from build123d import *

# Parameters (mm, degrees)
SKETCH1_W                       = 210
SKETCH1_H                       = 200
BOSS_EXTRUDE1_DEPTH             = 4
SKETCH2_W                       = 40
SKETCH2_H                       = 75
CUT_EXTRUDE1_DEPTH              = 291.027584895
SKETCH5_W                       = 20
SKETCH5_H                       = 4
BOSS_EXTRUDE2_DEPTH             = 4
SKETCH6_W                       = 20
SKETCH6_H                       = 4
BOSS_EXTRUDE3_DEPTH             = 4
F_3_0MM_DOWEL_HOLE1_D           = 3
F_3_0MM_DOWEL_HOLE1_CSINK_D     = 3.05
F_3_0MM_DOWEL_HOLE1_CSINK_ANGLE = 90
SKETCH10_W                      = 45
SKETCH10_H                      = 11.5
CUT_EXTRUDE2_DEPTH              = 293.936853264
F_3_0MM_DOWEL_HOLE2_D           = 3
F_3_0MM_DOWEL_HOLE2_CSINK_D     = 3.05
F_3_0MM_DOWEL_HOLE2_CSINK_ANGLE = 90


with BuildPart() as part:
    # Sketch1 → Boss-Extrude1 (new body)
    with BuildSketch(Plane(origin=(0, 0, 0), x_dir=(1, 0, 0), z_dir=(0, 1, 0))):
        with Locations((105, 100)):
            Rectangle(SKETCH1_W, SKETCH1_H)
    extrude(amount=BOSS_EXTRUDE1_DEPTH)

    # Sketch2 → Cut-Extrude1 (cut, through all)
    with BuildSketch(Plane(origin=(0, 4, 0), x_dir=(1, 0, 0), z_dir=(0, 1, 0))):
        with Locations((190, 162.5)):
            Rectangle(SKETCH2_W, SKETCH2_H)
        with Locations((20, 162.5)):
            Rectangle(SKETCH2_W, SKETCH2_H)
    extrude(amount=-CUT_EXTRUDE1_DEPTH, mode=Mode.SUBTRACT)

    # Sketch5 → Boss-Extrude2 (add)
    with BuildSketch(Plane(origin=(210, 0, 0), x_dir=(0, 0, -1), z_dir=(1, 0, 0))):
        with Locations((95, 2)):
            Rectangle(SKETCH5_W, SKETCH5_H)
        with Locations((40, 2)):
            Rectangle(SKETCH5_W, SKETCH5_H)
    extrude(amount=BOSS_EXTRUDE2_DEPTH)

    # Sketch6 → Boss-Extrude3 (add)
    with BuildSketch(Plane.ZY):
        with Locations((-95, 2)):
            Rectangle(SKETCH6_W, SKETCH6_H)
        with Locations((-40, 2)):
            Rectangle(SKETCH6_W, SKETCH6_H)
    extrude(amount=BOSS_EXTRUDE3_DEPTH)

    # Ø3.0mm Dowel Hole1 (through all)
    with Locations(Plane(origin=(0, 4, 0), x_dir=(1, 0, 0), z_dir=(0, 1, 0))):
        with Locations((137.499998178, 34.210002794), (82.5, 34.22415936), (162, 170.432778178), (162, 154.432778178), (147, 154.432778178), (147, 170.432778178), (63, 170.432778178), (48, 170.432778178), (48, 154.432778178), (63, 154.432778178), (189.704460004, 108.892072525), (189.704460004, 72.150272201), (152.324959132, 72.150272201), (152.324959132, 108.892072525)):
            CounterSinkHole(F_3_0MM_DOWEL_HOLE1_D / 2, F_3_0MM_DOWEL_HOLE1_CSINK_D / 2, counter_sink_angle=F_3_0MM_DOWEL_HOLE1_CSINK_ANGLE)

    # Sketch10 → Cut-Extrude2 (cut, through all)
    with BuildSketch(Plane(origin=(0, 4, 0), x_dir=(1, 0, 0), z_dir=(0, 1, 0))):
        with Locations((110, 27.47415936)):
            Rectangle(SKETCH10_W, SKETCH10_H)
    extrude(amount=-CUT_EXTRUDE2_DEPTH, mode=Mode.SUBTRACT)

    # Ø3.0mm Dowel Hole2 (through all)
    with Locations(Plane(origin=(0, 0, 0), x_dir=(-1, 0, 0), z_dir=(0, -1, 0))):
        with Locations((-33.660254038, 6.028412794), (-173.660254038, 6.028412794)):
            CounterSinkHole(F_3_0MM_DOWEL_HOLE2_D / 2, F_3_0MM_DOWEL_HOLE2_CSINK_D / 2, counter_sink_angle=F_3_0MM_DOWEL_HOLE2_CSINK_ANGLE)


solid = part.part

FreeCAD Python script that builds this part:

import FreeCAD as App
import Part
import Sketcher

V = App.Vector
Q = App.Units.Quantity

doc = App.newDocument("Part")
body = doc.addObject("PartDesign::Body", "Body")

sketch1 = body.newObject("Sketcher::SketchObject", "Sketch")
sketch1.AttachmentSupport = (doc.getObject("XZ_Plane"), [""])
sketch1.MapMode = "FlatFace"
sketch1.addGeometry([
    Part.LineSegment(V(0, -200, 0), V(0, 0, 0)),
    Part.LineSegment(V(0, 0, 0), V(210, 0, 0)),
    Part.LineSegment(V(210, 0, 0), V(210, -200, 0)),
    Part.LineSegment(V(210, -200, 0), V(0, -200, 0)),
], False)
sketch1.addConstraint([
    Sketcher.Constraint("Coincident", 0, 2, 1, 1),
    Sketcher.Constraint("Coincident", 1, 2, 2, 1),
    Sketcher.Constraint("Coincident", 2, 2, 3, 1),
    Sketcher.Constraint("Coincident", 3, 2, 0, 1),
    Sketcher.Constraint("Vertical", 0),
    Sketcher.Constraint("Horizontal", 1),
    Sketcher.Constraint("Vertical", 2),
    Sketcher.Constraint("Horizontal", 3),
    Sketcher.Constraint("Coincident", 0, 2, -1, 1),
    Sketcher.Constraint("DistanceX", 1, 1, 1, 2, Q("210 mm")),
    Sketcher.Constraint("DistanceY", 0, 1, 0, 2, Q("200 mm")),
])
pad1 = body.newObject("PartDesign::Pad", "Pad")
pad1.Profile = sketch1
pad1.Length = 4
pad1.Reversed = True

sketch2 = body.newObject("Sketcher::SketchObject", "Sketch001")
sketch2.AttachmentSupport = (doc.getObject("XZ_Plane"), [""])
sketch2.MapMode = "FlatFace"
sketch2.AttachmentOffset = App.Placement(V(0, 0, -4), App.Rotation())
sketch2.addGeometry([
    Part.LineSegment(V(170, -200, 0), V(170, -125, 0)),
    Part.LineSegment(V(170, -125, 0), V(210, -125, 0)),
    Part.LineSegment(V(210, -125, 0), V(210, -200, 0)),
    Part.LineSegment(V(210, -200, 0), V(170, -200, 0)),
    Part.LineSegment(V(0, -200, 0), V(0, -125, 0)),
    Part.LineSegment(V(0, -125, 0), V(40, -125, 0)),
    Part.LineSegment(V(40, -125, 0), V(40, -200, 0)),
    Part.LineSegment(V(40, -200, 0), V(0, -200, 0)),
], False)
sketch2.addConstraint([
    Sketcher.Constraint("Coincident", 0, 2, 1, 1),
    Sketcher.Constraint("Coincident", 1, 2, 2, 1),
    Sketcher.Constraint("Coincident", 2, 2, 3, 1),
    Sketcher.Constraint("Coincident", 3, 2, 0, 1),
    Sketcher.Constraint("Coincident", 4, 2, 5, 1),
    Sketcher.Constraint("Coincident", 5, 2, 6, 1),
    Sketcher.Constraint("Coincident", 6, 2, 7, 1),
    Sketcher.Constraint("Coincident", 7, 2, 4, 1),
    Sketcher.Constraint("Vertical", 0),
    Sketcher.Constraint("Horizontal", 1),
    Sketcher.Constraint("Vertical", 2),
    Sketcher.Constraint("Horizontal", 3),
    Sketcher.Constraint("Vertical", 4),
    Sketcher.Constraint("Horizontal", 5),
    Sketcher.Constraint("Vertical", 6),
    Sketcher.Constraint("Horizontal", 7),
    Sketcher.Constraint("PointOnObject", 4, 2, -2),
    Sketcher.Constraint("Horizontal", 1, 2, 4, 2),
    Sketcher.Constraint("Horizontal", 3, 2, 6, 2),
    Sketcher.Constraint("Equal", 3, 5),
    Sketcher.Constraint("DistanceX", 1, 1, 1, 2, Q("40 mm")),
    Sketcher.Constraint("DistanceY", 0, 1, 0, 2, Q("75 mm")),
    Sketcher.Constraint("DistanceX", -1, 1, 0, 2, Q("170 mm")),
    Sketcher.Constraint("DistanceY", 0, 2, -1, 1, Q("125 mm")),
])
pocket1 = body.newObject("PartDesign::Pocket", "Pocket")
pocket1.Profile = sketch2
pocket1.Type = "ThroughAll"
pocket1.Reversed = True

sketch3 = body.newObject("Sketcher::SketchObject", "Sketch002")
sketch3.AttachmentSupport = (doc.getObject("YZ_Plane"), [""])
sketch3.MapMode = "FlatFace"
sketch3.AttachmentOffset = App.Placement(V(0, 0, 210), App.Rotation())
sketch3.addGeometry([
    Part.LineSegment(V(4, -85, 0), V(0, -85, 0)),
    Part.LineSegment(V(0, -85, 0), V(0, -105, 0)),
    Part.LineSegment(V(0, -105, 0), V(4, -105, 0)),
    Part.LineSegment(V(4, -105, 0), V(4, -85, 0)),
    Part.LineSegment(V(4, -30, 0), V(0, -30, 0)),
    Part.LineSegment(V(0, -30, 0), V(0, -50, 0)),
    Part.LineSegment(V(0, -50, 0), V(4, -50, 0)),
    Part.LineSegment(V(4, -50, 0), V(4, -30, 0)),
], False)
sketch3.addConstraint([
    Sketcher.Constraint("Coincident", 0, 2, 1, 1),
    Sketcher.Constraint("Coincident", 1, 2, 2, 1),
    Sketcher.Constraint("Coincident", 2, 2, 3, 1),
    Sketcher.Constraint("Coincident", 3, 2, 0, 1),
    Sketcher.Constraint("Coincident", 4, 2, 5, 1),
    Sketcher.Constraint("Coincident", 5, 2, 6, 1),
    Sketcher.Constraint("Coincident", 6, 2, 7, 1),
    Sketcher.Constraint("Coincident", 7, 2, 4, 1),
    Sketcher.Constraint("Horizontal", 0),
    Sketcher.Constraint("Vertical", 1),
    Sketcher.Constraint("Horizontal", 2),
    Sketcher.Constraint("Vertical", 3),
    Sketcher.Constraint("Horizontal", 4),
    Sketcher.Constraint("Vertical", 5),
    Sketcher.Constraint("Horizontal", 6),
    Sketcher.Constraint("Vertical", 7),
    Sketcher.Constraint("PointOnObject", 0, 2, -2),
    Sketcher.Constraint("PointOnObject", 4, 2, -2),
    Sketcher.Constraint("Vertical", 3, 2, 6, 2),
    Sketcher.Constraint("Equal", 3, 5),
    Sketcher.Constraint("DistanceX", 0, 2, 0, 1, Q("4 mm")),
    Sketcher.Constraint("DistanceY", 1, 2, 1, 1, Q("20 mm")),
    Sketcher.Constraint("DistanceY", 0, 2, -1, 1, Q("85 mm")),
    Sketcher.Constraint("DistanceY", 4, 2, -1, 1, Q("30 mm")),
])
pad2 = body.newObject("PartDesign::Pad", "Pad001")
pad2.Profile = sketch3
pad2.Length = 4

sketch4 = body.newObject("Sketcher::SketchObject", "Sketch003")
sketch4.AttachmentSupport = (doc.getObject("YZ_Plane"), [""])
sketch4.MapMode = "FlatFace"
sketch4.addGeometry([
    Part.LineSegment(V(4, -105, 0), V(0, -105, 0)),
    Part.LineSegment(V(0, -105, 0), V(0, -85, 0)),
    Part.LineSegment(V(0, -85, 0), V(4, -85, 0)),
    Part.LineSegment(V(4, -85, 0), V(4, -105, 0)),
    Part.LineSegment(V(4, -50, 0), V(0, -50, 0)),
    Part.LineSegment(V(0, -50, 0), V(0, -30, 0)),
    Part.LineSegment(V(0, -30, 0), V(4, -30, 0)),
    Part.LineSegment(V(4, -30, 0), V(4, -50, 0)),
], False)
sketch4.addConstraint([
    Sketcher.Constraint("Coincident", 0, 2, 1, 1),
    Sketcher.Constraint("Coincident", 1, 2, 2, 1),
    Sketcher.Constraint("Coincident", 2, 2, 3, 1),
    Sketcher.Constraint("Coincident", 3, 2, 0, 1),
    Sketcher.Constraint("Coincident", 4, 2, 5, 1),
    Sketcher.Constraint("Coincident", 5, 2, 6, 1),
    Sketcher.Constraint("Coincident", 6, 2, 7, 1),
    Sketcher.Constraint("Coincident", 7, 2, 4, 1),
    Sketcher.Constraint("Horizontal", 0),
    Sketcher.Constraint("Vertical", 1),
    Sketcher.Constraint("Horizontal", 2),
    Sketcher.Constraint("Vertical", 3),
    Sketcher.Constraint("Horizontal", 4),
    Sketcher.Constraint("Vertical", 5),
    Sketcher.Constraint("Horizontal", 6),
    Sketcher.Constraint("Vertical", 7),
    Sketcher.Constraint("PointOnObject", 0, 2, -2),
    Sketcher.Constraint("PointOnObject", 4, 2, -2),
    Sketcher.Constraint("Vertical", 3, 2, 6, 2),
    Sketcher.Constraint("Equal", 3, 5),
    Sketcher.Constraint("DistanceX", 0, 2, 0, 1, Q("4 mm")),
    Sketcher.Constraint("DistanceY", 1, 1, 1, 2, Q("20 mm")),
    Sketcher.Constraint("DistanceY", 0, 2, -1, 1, Q("105 mm")),
    Sketcher.Constraint("DistanceY", 4, 2, -1, 1, Q("50 mm")),
])
pad3 = body.newObject("PartDesign::Pad", "Pad002")
pad3.Profile = sketch4
pad3.Length = 4
pad3.Reversed = True

sketch5 = body.newObject("Sketcher::SketchObject", "Sketch004")
sketch5.AttachmentSupport = (doc.getObject("XZ_Plane"), [""])
sketch5.MapMode = "FlatFace"
sketch5.AttachmentOffset = App.Placement(V(0, 0, -4), App.Rotation())
sketch5.addGeometry([
    Part.Circle(V(137.499998, -34.210003, 0), V(0, 0, 1), 1.5),
    Part.Circle(V(82.5, -34.224159, 0), V(0, 0, 1), 1.5),
    Part.Circle(V(162, -170.432778, 0), V(0, 0, 1), 1.5),
    Part.Circle(V(162, -154.432778, 0), V(0, 0, 1), 1.5),
    Part.Circle(V(147, -154.432778, 0), V(0, 0, 1), 1.5),
    Part.Circle(V(147, -170.432778, 0), V(0, 0, 1), 1.5),
    Part.Circle(V(63, -170.432778, 0), V(0, 0, 1), 1.5),
    Part.Circle(V(48, -170.432778, 0), V(0, 0, 1), 1.5),
    Part.Circle(V(48, -154.432778, 0), V(0, 0, 1), 1.5),
    Part.Circle(V(63, -154.432778, 0), V(0, 0, 1), 1.5),
    Part.Circle(V(189.70446, -108.892073, 0), V(0, 0, 1), 1.5),
    Part.Circle(V(189.70446, -72.150272, 0), V(0, 0, 1), 1.5),
    Part.Circle(V(152.324959, -72.150272, 0), V(0, 0, 1), 1.5),
    Part.Circle(V(152.324959, -108.892073, 0), V(0, 0, 1), 1.5),
], False)
sketch5.addConstraint([
    Sketcher.Constraint("Equal", 0, 1),
    Sketcher.Constraint("Equal", 1, 2),
    Sketcher.Constraint("Equal", 2, 3),
    Sketcher.Constraint("Equal", 3, 4),
    Sketcher.Constraint("Equal", 4, 5),
    Sketcher.Constraint("Equal", 5, 6),
    Sketcher.Constraint("Equal", 6, 7),
    Sketcher.Constraint("Equal", 7, 8),
    Sketcher.Constraint("Equal", 8, 9),
    Sketcher.Constraint("Equal", 9, 10),
    Sketcher.Constraint("Equal", 10, 11),
    Sketcher.Constraint("Equal", 11, 12),
    Sketcher.Constraint("Equal", 12, 13),
    Sketcher.Constraint("Horizontal", 3, 3, 4, 3),
    Sketcher.Constraint("Horizontal", 2, 3, 5, 3),
    Sketcher.Constraint("Horizontal", 5, 3, 6, 3),
    Sketcher.Constraint("Horizontal", 6, 3, 7, 3),
    Sketcher.Constraint("Horizontal", 4, 3, 8, 3),
    Sketcher.Constraint("Horizontal", 8, 3, 9, 3),
    Sketcher.Constraint("Horizontal", 11, 3, 12, 3),
    Sketcher.Constraint("Horizontal", 10, 3, 13, 3),
    Sketcher.Constraint("Vertical", 2, 3, 3, 3),
    Sketcher.Constraint("Vertical", 4, 3, 5, 3),
    Sketcher.Constraint("Vertical", 7, 3, 8, 3),
    Sketcher.Constraint("Vertical", 6, 3, 9, 3),
    Sketcher.Constraint("Vertical", 10, 3, 11, 3),
    Sketcher.Constraint("Vertical", 12, 3, 13, 3),
    Sketcher.Constraint("Diameter", 0, Q("3 mm")),
    Sketcher.Constraint("DistanceX", -1, 1, 2, 3, Q("162 mm")),
    Sketcher.Constraint("DistanceX", -1, 1, 4, 3, Q("147 mm")),
    Sketcher.Constraint("DistanceX", -1, 1, 6, 3, Q("63 mm")),
    Sketcher.Constraint("DistanceX", -1, 1, 7, 3, Q("48 mm")),
    Sketcher.Constraint("DistanceX", 1, 3, 0, 3, Q("54.999998 mm")),
    Sketcher.Constraint("DistanceY", 2, 3, 3, 3, Q("16 mm")),
    Sketcher.Constraint("DistanceX", -1, 1, 0, 3, Q("137.499998 mm")),
    Sketcher.Constraint("DistanceY", 10, 3, 11, 3, Q("36.7418 mm")),
    Sketcher.Constraint("DistanceX", 12, 3, 11, 3, Q("37.379501 mm")),
    Sketcher.Constraint("DistanceY", 1, 3, -1, 1, Q("34.224159 mm")),
    Sketcher.Constraint("DistanceY", 2, 3, -1, 1, Q("170.432778 mm")),
    Sketcher.Constraint("DistanceX", -1, 1, 10, 3, Q("189.70446 mm")),
    Sketcher.Constraint("DistanceY", 10, 3, 0, 3, Q("74.68207 mm")),
    Sketcher.Constraint("DistanceY", 0, 3, -1, 1, Q("34.210003 mm")),
])
doc.recompute()
hole = body.newObject("PartDesign::Hole", "Hole")
hole.Profile = sketch5
hole.ThreadType = "None"
hole.Diameter = 3
hole.DepthType = "ThroughAll"
hole.HoleCutType = "Countersink"
hole.HoleCutDiameter = 3.05
hole.HoleCutCountersinkAngle = 90
hole.Reversed = True

sketch6 = body.newObject("Sketcher::SketchObject", "Sketch005")
sketch6.AttachmentSupport = (doc.getObject("XZ_Plane"), [""])
sketch6.MapMode = "FlatFace"
sketch6.AttachmentOffset = App.Placement(V(0, 0, -4), App.Rotation())
sketch6.addGeometry([
    Part.LineSegment(V(87.5, -33.224159, 0), V(87.5, -21.724159, 0)),
    Part.LineSegment(V(87.5, -21.724159, 0), V(132.5, -21.724159, 0)),
    Part.LineSegment(V(132.5, -21.724159, 0), V(132.5, -33.224159, 0)),
    Part.LineSegment(V(132.5, -33.224159, 0), V(87.5, -33.224159, 0)),
], False)
sketch6.addConstraint([
    Sketcher.Constraint("Coincident", 0, 2, 1, 1),
    Sketcher.Constraint("Coincident", 1, 2, 2, 1),
    Sketcher.Constraint("Coincident", 2, 2, 3, 1),
    Sketcher.Constraint("Coincident", 3, 2, 0, 1),
    Sketcher.Constraint("Vertical", 0),
    Sketcher.Constraint("Horizontal", 1),
    Sketcher.Constraint("Vertical", 2),
    Sketcher.Constraint("Horizontal", 3),
    Sketcher.Constraint("DistanceX", 1, 1, 1, 2, Q("45 mm")),
    Sketcher.Constraint("DistanceY", 0, 1, 0, 2, Q("11.5 mm")),
    Sketcher.Constraint("DistanceX", -1, 1, 0, 2, Q("87.5 mm")),
    Sketcher.Constraint("DistanceY", 0, 2, -1, 1, Q("21.724159 mm")),
])
pocket2 = body.newObject("PartDesign::Pocket", "Pocket001")
pocket2.Profile = sketch6
pocket2.Type = "ThroughAll"
pocket2.Reversed = True

sketch7 = body.newObject("Sketcher::SketchObject", "Sketch006")
sketch7.AttachmentSupport = (doc.getObject("XZ_Plane"), [""])
sketch7.MapMode = "FlatFace"
sketch7.addGeometry([
    Part.Circle(V(33.660254, -6.028413, 0), V(0, 0, 1), 1.5),
    Part.Circle(V(173.660254, -6.028413, 0), V(0, 0, 1), 1.5),
], False)
sketch7.addConstraint([
    Sketcher.Constraint("Equal", 0, 1),
    Sketcher.Constraint("Horizontal", 0, 3, 1, 3),
    Sketcher.Constraint("Diameter", 0, Q("3 mm")),
    Sketcher.Constraint("DistanceX", 0, 3, 1, 3, Q("140 mm")),
    Sketcher.Constraint("DistanceX", -1, 1, 0, 3, Q("33.660254 mm")),
    Sketcher.Constraint("DistanceY", 0, 3, -1, 1, Q("6.028413 mm")),
])
doc.recompute()
hole2 = body.newObject("PartDesign::Hole", "Hole001")
hole2.Profile = sketch7
hole2.ThreadType = "None"
hole2.Diameter = 3
hole2.DepthType = "ThroughAll"
hole2.HoleCutType = "Countersink"
hole2.HoleCutDiameter = 3.05
hole2.HoleCutCountersinkAngle = 90

doc.recompute()
